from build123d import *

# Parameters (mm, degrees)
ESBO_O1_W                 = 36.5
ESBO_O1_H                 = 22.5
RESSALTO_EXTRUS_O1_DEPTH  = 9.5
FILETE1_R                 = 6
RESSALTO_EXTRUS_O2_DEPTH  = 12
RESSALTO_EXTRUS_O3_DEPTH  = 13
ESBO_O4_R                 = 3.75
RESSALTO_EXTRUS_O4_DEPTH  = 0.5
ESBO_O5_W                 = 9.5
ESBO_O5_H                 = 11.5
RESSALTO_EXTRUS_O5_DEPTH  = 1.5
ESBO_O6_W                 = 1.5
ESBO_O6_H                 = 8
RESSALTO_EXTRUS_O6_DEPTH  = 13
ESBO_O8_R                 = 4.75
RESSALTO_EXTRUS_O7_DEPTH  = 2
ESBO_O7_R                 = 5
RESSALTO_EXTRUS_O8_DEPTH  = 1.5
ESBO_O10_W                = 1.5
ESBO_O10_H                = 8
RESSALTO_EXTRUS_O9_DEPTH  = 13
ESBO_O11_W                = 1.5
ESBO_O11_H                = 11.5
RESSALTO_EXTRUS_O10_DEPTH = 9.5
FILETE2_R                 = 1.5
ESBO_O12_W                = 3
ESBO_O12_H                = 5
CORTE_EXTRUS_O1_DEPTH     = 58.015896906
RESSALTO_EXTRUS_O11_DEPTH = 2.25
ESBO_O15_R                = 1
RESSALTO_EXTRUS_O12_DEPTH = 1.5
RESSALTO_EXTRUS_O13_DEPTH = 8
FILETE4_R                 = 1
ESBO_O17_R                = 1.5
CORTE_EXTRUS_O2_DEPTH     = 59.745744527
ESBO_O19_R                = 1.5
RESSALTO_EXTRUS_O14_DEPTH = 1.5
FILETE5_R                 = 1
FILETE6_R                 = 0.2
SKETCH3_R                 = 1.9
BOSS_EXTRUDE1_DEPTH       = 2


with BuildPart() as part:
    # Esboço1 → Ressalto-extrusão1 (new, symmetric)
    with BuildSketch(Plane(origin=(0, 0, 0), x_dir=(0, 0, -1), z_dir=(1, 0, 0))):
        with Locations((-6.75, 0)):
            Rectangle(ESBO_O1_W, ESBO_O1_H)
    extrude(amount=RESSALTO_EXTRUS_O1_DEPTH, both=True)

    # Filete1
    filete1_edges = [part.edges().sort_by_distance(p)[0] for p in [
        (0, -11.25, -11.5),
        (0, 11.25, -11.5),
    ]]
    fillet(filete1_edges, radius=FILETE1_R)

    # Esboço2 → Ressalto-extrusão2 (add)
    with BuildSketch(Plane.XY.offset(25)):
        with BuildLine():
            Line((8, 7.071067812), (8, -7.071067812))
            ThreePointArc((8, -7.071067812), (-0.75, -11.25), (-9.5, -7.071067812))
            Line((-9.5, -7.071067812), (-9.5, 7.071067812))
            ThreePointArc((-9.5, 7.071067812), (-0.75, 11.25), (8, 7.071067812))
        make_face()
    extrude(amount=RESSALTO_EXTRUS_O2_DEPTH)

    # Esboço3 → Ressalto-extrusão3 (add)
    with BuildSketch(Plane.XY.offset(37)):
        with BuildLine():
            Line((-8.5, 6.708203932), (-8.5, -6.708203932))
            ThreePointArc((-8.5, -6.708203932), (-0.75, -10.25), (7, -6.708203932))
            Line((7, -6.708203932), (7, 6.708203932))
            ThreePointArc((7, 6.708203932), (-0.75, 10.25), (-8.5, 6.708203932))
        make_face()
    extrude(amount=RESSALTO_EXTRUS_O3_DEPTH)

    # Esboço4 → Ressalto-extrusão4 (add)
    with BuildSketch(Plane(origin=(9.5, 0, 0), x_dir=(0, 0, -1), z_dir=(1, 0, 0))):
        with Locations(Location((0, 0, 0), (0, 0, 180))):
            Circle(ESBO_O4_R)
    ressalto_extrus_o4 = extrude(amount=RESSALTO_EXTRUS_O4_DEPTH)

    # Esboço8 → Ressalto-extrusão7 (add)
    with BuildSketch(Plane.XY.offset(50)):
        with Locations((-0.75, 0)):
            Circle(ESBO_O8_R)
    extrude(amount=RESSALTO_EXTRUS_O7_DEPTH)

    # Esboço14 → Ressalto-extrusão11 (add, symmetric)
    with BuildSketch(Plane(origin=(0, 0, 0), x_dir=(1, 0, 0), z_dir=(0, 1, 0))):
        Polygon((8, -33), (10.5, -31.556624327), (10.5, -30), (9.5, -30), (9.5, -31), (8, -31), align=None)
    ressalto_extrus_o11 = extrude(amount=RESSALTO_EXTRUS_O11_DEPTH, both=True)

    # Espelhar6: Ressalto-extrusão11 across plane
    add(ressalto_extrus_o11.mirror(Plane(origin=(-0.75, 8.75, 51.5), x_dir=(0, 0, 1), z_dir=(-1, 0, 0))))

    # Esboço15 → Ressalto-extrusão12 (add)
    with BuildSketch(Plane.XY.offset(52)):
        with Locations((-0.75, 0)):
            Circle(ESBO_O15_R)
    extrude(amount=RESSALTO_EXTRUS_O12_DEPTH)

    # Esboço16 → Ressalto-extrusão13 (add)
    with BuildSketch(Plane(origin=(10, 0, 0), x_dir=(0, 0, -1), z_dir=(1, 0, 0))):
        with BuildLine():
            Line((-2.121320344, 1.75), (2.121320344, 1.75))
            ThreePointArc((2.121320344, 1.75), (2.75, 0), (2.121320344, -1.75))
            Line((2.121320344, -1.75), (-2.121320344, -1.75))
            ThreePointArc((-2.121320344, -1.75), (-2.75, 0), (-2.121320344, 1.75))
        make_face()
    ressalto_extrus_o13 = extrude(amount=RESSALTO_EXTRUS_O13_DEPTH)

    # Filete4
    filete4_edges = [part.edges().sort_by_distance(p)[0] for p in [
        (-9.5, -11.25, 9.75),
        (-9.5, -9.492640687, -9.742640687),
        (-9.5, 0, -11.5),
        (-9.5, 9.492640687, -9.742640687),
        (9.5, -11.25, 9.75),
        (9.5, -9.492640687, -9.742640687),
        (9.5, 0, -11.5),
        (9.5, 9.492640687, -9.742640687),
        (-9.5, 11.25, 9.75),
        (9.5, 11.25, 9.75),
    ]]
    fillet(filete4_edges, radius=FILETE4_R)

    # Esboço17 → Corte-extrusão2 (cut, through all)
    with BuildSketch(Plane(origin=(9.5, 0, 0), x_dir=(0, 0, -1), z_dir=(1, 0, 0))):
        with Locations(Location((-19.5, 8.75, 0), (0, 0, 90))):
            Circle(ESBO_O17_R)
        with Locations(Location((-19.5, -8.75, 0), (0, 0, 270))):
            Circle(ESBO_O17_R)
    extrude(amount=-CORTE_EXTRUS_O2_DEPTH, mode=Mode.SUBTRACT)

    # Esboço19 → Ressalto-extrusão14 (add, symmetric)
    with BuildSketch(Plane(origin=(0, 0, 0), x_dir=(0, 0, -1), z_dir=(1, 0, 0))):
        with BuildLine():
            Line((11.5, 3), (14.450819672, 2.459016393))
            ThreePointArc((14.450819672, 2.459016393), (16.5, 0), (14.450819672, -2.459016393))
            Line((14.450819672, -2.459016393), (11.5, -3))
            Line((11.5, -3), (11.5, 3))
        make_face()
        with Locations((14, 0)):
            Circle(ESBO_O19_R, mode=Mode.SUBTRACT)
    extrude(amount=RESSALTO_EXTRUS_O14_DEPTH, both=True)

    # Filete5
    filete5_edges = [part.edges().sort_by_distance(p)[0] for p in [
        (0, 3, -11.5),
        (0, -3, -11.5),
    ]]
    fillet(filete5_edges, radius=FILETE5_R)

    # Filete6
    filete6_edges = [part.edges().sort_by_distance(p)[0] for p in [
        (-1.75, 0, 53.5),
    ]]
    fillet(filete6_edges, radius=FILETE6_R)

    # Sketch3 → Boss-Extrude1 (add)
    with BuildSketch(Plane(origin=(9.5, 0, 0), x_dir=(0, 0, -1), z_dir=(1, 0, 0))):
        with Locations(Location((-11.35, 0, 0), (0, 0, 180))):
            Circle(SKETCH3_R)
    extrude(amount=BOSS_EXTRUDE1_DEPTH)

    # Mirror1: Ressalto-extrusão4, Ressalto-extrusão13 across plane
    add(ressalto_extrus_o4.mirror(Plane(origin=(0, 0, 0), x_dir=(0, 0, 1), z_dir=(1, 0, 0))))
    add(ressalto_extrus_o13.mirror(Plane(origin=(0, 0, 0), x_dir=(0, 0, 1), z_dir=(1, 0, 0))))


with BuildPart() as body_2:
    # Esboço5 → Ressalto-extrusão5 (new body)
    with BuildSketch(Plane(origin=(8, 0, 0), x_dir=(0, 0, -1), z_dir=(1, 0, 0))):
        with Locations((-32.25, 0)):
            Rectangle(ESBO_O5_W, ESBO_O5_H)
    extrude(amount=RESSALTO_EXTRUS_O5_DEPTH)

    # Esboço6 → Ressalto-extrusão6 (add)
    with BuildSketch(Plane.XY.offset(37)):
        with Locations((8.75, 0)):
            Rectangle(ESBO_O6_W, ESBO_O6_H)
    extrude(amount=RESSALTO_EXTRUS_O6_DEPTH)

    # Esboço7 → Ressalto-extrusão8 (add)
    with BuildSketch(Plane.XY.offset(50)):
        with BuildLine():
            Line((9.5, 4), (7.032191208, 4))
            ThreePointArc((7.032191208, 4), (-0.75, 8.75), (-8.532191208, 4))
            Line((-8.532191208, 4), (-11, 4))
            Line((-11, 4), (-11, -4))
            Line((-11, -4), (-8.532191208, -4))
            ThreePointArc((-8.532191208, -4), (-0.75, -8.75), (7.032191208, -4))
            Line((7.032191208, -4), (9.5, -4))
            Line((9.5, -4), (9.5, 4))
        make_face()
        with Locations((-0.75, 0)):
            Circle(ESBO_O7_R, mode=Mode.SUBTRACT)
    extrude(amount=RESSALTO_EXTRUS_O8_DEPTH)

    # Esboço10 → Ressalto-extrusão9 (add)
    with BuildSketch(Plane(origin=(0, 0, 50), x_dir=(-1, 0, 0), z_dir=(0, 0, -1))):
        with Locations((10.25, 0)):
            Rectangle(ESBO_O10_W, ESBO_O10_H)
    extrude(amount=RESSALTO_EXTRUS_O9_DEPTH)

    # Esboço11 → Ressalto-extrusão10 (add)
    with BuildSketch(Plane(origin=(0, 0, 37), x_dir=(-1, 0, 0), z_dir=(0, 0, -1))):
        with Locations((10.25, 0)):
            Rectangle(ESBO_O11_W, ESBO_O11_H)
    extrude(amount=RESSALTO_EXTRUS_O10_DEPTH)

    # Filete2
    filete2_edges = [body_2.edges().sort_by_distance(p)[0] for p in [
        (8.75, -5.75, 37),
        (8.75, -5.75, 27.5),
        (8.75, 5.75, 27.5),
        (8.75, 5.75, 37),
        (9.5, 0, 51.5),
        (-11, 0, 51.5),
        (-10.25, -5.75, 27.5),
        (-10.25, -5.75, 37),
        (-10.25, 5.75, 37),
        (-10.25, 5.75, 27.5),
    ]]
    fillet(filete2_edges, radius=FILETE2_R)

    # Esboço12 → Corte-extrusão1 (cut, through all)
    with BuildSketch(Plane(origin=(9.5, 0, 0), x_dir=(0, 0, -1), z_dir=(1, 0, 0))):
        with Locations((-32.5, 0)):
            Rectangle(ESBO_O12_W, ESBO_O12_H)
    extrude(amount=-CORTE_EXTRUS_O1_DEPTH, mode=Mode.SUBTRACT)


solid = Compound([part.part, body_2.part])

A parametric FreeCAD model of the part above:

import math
import FreeCAD as App
import Part
import Sketcher
Q = App.Units.Quantity


def edges_at(feature, points):
    """Names of the edges that pass closest to the given points."""
    edges = feature.Shape.Edges
    near = lambda p: min(range(len(edges)), key=lambda i: edges[i].distToShape(Part.Vertex(*p))[0])
    return sorted({f"Edge{near(p) + 1}" for p in points})


def add_polygon(sketch, points):
    """Adds a closed chain of lines whose ends are joined by coincident constraints."""
    first, n = sketch.GeometryCount, len(points)
    for a, b in zip(points, points[1:] + points[:1]):
        sketch.addGeometry(Part.LineSegment(App.Vector(*a, 0), App.Vector(*b, 0)), False)
    for i in range(n):
        sketch.addConstraint(Sketcher.Constraint("Coincident", first + i, 2, first + (i + 1) % n, 1))

doc = App.newDocument("Part")
body = doc.addObject("PartDesign::Body", "Body")

sketch1 = doc.addObject("Sketcher::SketchObject", "Sketch")
body.addObject(sketch1)
sketch1.AttachmentSupport = (doc.YZ_Plane, [""])
sketch1.MapMode = "FlatFace"
add_polygon(sketch1, [(11, 25), (-11, 25), (-11, -12), (11, -12)])
sketch1.addConstraint([
    Sketcher.Constraint("Horizontal", 0),
    Sketcher.Constraint("Vertical", 1),
    Sketcher.Constraint("Horizontal", 2),
    Sketcher.Constraint("Vertical", 3),
    Sketcher.Constraint("DistanceX", 0, 2, 0, 1, Q("22.5 mm")),
    Sketcher.Constraint("DistanceY", 1, 2, 1, 1, Q("36.5 mm")),
    Sketcher.Constraint("DistanceY", -1, 1, 0, 2, Q("25 mm")),
    Sketcher.Constraint("DistanceX", 0, 2, -1, 1, Q("11.25 mm")),
])
pad1 = doc.addObject("PartDesign::Pad", "Pad")
body.addObject(pad1)
pad1.Profile = sketch1
pad1.Length = 19
pad1.Midplane = True
doc.recompute()

fillet = doc.addObject("PartDesign::Fillet", "Fillet")
body.addObject(fillet)
fillet.Base = (pad1, edges_at(pad1, [(0, -11.25, -11.5), (0, 11.25, -11.5)]))
fillet.Radius = 6

sketch2 = doc.addObject("Sketcher::SketchObject", "Sketch001")
body.addObject(sketch2)
sketch2.AttachmentSupport = (doc.XY_Plane, [""])
sketch2.MapMode = "FlatFace"
sketch2.AttachmentOffset = App.Placement(App.Vector(0, 0, 25), App.Rotation())
sketch2.addGeometry([
    Part.LineSegment(App.Vector(8, -7, 0), App.Vector(8, 7, 0)),
    Part.ArcOfCircle(Part.Circle(App.Vector(-1, 0, 0), App.Vector(0, 0, 1), 11), math.radians(39), math.radians(141)),
    Part.LineSegment(App.Vector(-10, 7, 0), App.Vector(-10, -7, 0)),
    Part.ArcOfCircle(Part.Circle(App.Vector(-1, 0, 0), App.Vector(0, 0, 1), 11), math.radians(-141), math.radians(-39)),
], False)
sketch2.addConstraint([
    Sketcher.Constraint("Coincident", 0, 2, 1, 1),
    Sketcher.Constraint("Coincident", 1, 2, 2, 1),
    Sketcher.Constraint("Coincident", 2, 2, 3, 1),
    Sketcher.Constraint("Coincident", 3, 2, 0, 1),
    Sketcher.Constraint("Vertical", 0),
    Sketcher.Constraint("Vertical", 2),
    Sketcher.Constraint("Coincident", 3, 3, 1, 3),
    Sketcher.Constraint("Equal", 1, 3),
    Sketcher.Constraint("PointOnObject", 1, 3, -1),
    Sketcher.Constraint("Horizontal", 0, 2, 1, 2),
    Sketcher.Constraint("Radius", 1, Q("11.25 mm")),
    Sketcher.Constraint("DistanceX", -1, 1, 0, 2, Q("8 mm")),
    Sketcher.Constraint("DistanceX", 1, 2, -1, 1, Q("9.5 mm")),
])
pad2 = doc.addObject("PartDesign::Pad", "Pad001")
body.addObject(pad2)
pad2.Profile = sketch2
pad2.Length = 12

sketch3 = doc.addObject("Sketcher::SketchObject", "Sketch002")
body.addObject(sketch3)
sketch3.AttachmentSupport = (doc.XY_Plane, [""])
sketch3.MapMode = "FlatFace"
sketch3.AttachmentOffset = App.Placement(App.Vector(0, 0, 37), App.Rotation())
sketch3.addGeometry([
    Part.LineSegment(App.Vector(-8, 7, 0), App.Vector(-8, -7, 0)),
    Part.ArcOfCircle(Part.Circle(App.Vector(-1, 0, 0), App.Vector(0, 0, 1), 10), math.radians(-139), math.radians(-41)),
    Part.LineSegment(App.Vector(7, -7, 0), App.Vector(7, 7, 0)),
    Part.ArcOfCircle(Part.Circle(App.Vector(-1, 0, 0), App.Vector(0, 0, 1), 10), math.radians(41), math.radians(139)),
], False)
sketch3.addConstraint([
    Sketcher.Constraint("Coincident", 0, 2, 1, 1),
    Sketcher.Constraint("Coincident", 1, 2, 2, 1),
    Sketcher.Constraint("Coincident", 2, 2, 3, 1),
    Sketcher.Constraint("Coincident", 3, 2, 0, 1),
    Sketcher.Constraint("Vertical", 0),
    Sketcher.Constraint("Vertical", 2),
    Sketcher.Constraint("Coincident", 3, 3, 1, 3),
    Sketcher.Constraint("Equal", 1, 3),
    Sketcher.Constraint("PointOnObject", 1, 3, -1),
    Sketcher.Constraint("Horizontal", 0, 2, 1, 2),
    Sketcher.Constraint("Radius", 1, Q("10.25 mm")),
    Sketcher.Constraint("DistanceX", -1, 1, 1, 2, Q("7 mm")),
    Sketcher.Constraint("DistanceX", 0, 2, -1, 1, Q("8.5 mm")),
])
pad3 = doc.addObject("PartDesign::Pad", "Pad002")
body.addObject(pad3)
pad3.Profile = sketch3
pad3.Length = 13

sketch4 = doc.addObject("Sketcher::SketchObject", "Sketch003")
body.addObject(sketch4)
sketch4.AttachmentSupport = (doc.YZ_Plane, [""])
sketch4.MapMode = "FlatFace"
sketch4.AttachmentOffset = App.Placement(App.Vector(0, 0, 9.5), App.Rotation())
sketch4.addGeometry(Part.Circle(App.Vector(0, 0, 0), App.Vector(0, 0, 1), 3.8), False)
sketch4.addConstraint([
    Sketcher.Constraint("Coincident", 0, 3, -1, 1),
    Sketcher.Constraint("Diameter", 0, Q("7.5 mm")),
])
pad4 = doc.addObject("PartDesign::Pad", "Pad003")
body.addObject(pad4)
pad4.Profile = sketch4
pad4.Length = 0.5

sketch5 = doc.addObject("Sketcher::SketchObject", "Sketch004")
body.addObject(sketch5)
sketch5.AttachmentSupport = (doc.XY_Plane, [""])
sketch5.MapMode = "FlatFace"
sketch5.AttachmentOffset = App.Placement(App.Vector(0, 0, 50), App.Rotation())
sketch5.addGeometry(Part.Circle(App.Vector(-0.8, 0, 0), App.Vector(0, 0, 1), 4.8), False)
sketch5.addConstraint([
    Sketcher.Constraint("PointOnObject", 0, 3, -1),
    Sketcher.Constraint("Diameter", 0, Q("9.5 mm")),
    Sketcher.Constraint("DistanceX", 0, 3, -1, 1, Q("0.75 mm")),
])
pad5 = doc.addObject("PartDesign::Pad", "Pad004")
body.addObject(pad5)
pad5.Profile = sketch5
pad5.Length = 2

sketch6 = doc.addObject("Sketcher::SketchObject", "Sketch005")
body.addObject(sketch6)
sketch6.AttachmentSupport = (doc.XZ_Plane, [""])
sketch6.MapMode = "FlatFace"
add_polygon(sketch6, [(8, 33), (10.5, 31.6), (10.5, 30), (9.5, 30), (9.5, 31), (8, 31)])
sketch6.addConstraint([
    Sketcher.Constraint("Vertical", 1),
    Sketcher.Constraint("Horizontal", 2),
    Sketcher.Constraint("Vertical", 3),
    Sketcher.Constraint("Horizontal", 4),
    Sketcher.Constraint("Vertical", 5),
    Sketcher.Constraint("Equal", 2, 3),
    Sketcher.Constraint("DistanceX", 2, 2, 2, 1, Q("1 mm")),
    Sketcher.Constraint("DistanceY", 5, 1, 5, 2, Q("2 mm")),
    Sketcher.Constraint("Angle", 0, Q("-30 deg")),
    Sketcher.Constraint("DistanceX", 4, 2, 4, 1, Q("1.5 mm")),
    Sketcher.Constraint("DistanceY", -1, 1, 1, 2, Q("30 mm")),
    Sketcher.Constraint("DistanceX", -1, 1, 4, 2, Q("8 mm")),
])
pad6 = doc.addObject("PartDesign::Pad", "Pad005")
body.addObject(pad6)
pad6.Profile = sketch6
pad6.Length = 4.5
pad6.Midplane = True
doc.recompute()

datumplane = doc.addObject("PartDesign::Plane", "DatumPlane")
body.addObject(datumplane)
datumplane.AttachmentSupport = (doc.YZ_Plane, [""])
datumplane.MapMode = "FlatFace"
datumplane.AttachmentOffset = App.Placement(App.Vector(0, 0, -0.75), App.Rotation())
mirrored = doc.addObject("PartDesign::Mirrored", "Mirrored")
body.addObject(mirrored)
mirrored.Originals = [pad6]
mirrored.MirrorPlane = (datumplane, [""])
body.Tip = mirrored

sketch7 = doc.addObject("Sketcher::SketchObject", "Sketch006")
body.addObject(sketch7)
sketch7.AttachmentSupport = (doc.XY_Plane, [""])
sketch7.MapMode = "FlatFace"
sketch7.AttachmentOffset = App.Placement(App.Vector(0, 0, 52), App.Rotation())
sketch7.addGeometry(Part.Circle(App.Vector(-0.8, 0, 0), App.Vector(0, 0, 1), 1), False)
sketch7.addConstraint([
    Sketcher.Constraint("PointOnObject", 0, 3, -1),
    Sketcher.Constraint("Diameter", 0, Q("2 mm")),
    Sketcher.Constraint("DistanceX", 0, 3, -1, 1, Q("0.75 mm")),
])
pad7 = doc.addObject("PartDesign::Pad", "Pad006")
body.addObject(pad7)
pad7.Profile = sketch7
pad7.Length = 1.5

sketch8 = doc.addObject("Sketcher::SketchObject", "Sketch007")
body.addObject(sketch8)
sketch8.AttachmentSupport = (doc.YZ_Plane, [""])
sketch8.MapMode = "FlatFace"
sketch8.AttachmentOffset = App.Placement(App.Vector(0, 0, 10), App.Rotation())
sketch8.addGeometry([
    Part.LineSegment(App.Vector(1.8, -2.1, 0), App.Vector(1.8, 2.1, 0)),
    Part.ArcOfCircle(Part.Circle(App.Vector(0, 0, 0), App.Vector(0, 0, 1), 2.8), math.radians(50), math.radians(130)),
    Part.LineSegment(App.Vector(-1.8, 2.1, 0), App.Vector(-1.8, -2.1, 0)),
    Part.ArcOfCircle(Part.Circle(App.Vector(0, 0, 0), App.Vector(0, 0, 1), 2.8), math.radians(-130), math.radians(-50)),
], False)
sketch8.addConstraint([
    Sketcher.Constraint("Coincident", 0, 2, 1, 1),
    Sketcher.Constraint("Coincident", 1, 2, 2, 1),
    Sketcher.Constraint("Coincident", 2, 2, 3, 1),
    Sketcher.Constraint("Coincident", 3, 2, 0, 1),
    Sketcher.Constraint("Vertical", 0),
    Sketcher.Constraint("Vertical", 2),
    Sketcher.Constraint("Coincident", 1, 3, -1, 1),
    Sketcher.Constraint("Coincident", 3, 3, -1, 1),
    Sketcher.Constraint("Equal", 1, 3),
    Sketcher.Constraint("Horizontal", 0, 2, 1, 2),
    Sketcher.Constraint("Radius", 1, Q("2.75 mm")),
    Sketcher.Constraint("DistanceX", 1, 2, 0, 2, Q("3.5 mm")),
])
pad8 = doc.addObject("PartDesign::Pad", "Pad007")
body.addObject(pad8)
pad8.Profile = sketch8
pad8.Length = 8
doc.recompute()

fillet2 = doc.addObject("PartDesign::Fillet", "Fillet001")
body.addObject(fillet2)
fillet2.Base = (pad8, edges_at(pad8, [
    (-9.5, -11.25, 9.75),
    (-9.5, -9.493, -9.743),
    (-9.5, 0, -11.5),
    (-9.5, 9.493, -9.743),
    (9.5, -11.25, 9.75),
    (9.5, -9.493, -9.743),
    (9.5, 0, -11.5),
    (9.5, 9.493, -9.743),
    (-9.5, 11.25, 9.75),
    (9.5, 11.25, 9.75),
]))
fillet2.Radius = 1

sketch9 = doc.addObject("Sketcher::SketchObject", "Sketch008")
body.addObject(sketch9)
sketch9.AttachmentSupport = (doc.YZ_Plane, [""])
sketch9.MapMode = "FlatFace"
sketch9.AttachmentOffset = App.Placement(App.Vector(0, 0, 9.5), App.Rotation())
sketch9.addGeometry([
    Part.Circle(App.Vector(8.8, 19.5, 0), App.Vector(0, 0, 1), 1.5),
    Part.Circle(App.Vector(-8.8, 19.5, 0), App.Vector(0, 0, 1), 1.5),
], False)
sketch9.addConstraint([
    Sketcher.Constraint("Equal", 0, 1),
    Sketcher.Constraint("Symmetric", 0, 3, 1, 3, -2),
    Sketcher.Constraint("Diameter", 0, Q("3 mm")),
    Sketcher.Constraint("DistanceY", -1, 1, 0, 3, Q("19.5 mm")),
    Sketcher.Constraint("DistanceX", 1, 3, 0, 3, Q("17.5 mm")),
])
pocket1 = doc.addObject("PartDesign::Pocket", "Pocket")
body.addObject(pocket1)
pocket1.Profile = sketch9
pocket1.Type = "ThroughAll"

sketch10 = doc.addObject("Sketcher::SketchObject", "Sketch009")
body.addObject(sketch10)
sketch10.AttachmentSupport = (doc.YZ_Plane, [""])
sketch10.MapMode = "FlatFace"
sketch10.addGeometry([
    Part.LineSegment(App.Vector(2.5, -14.5, 0), App.Vector(3, -11.5, 0)),
    Part.LineSegment(App.Vector(3, -11.5, 0), App.Vector(-3, -11.5, 0)),
    Part.LineSegment(App.Vector(-3, -11.5, 0), App.Vector(-2.5, -14.5, 0)),
    Part.ArcOfCircle(Part.Circle(App.Vector(0, -14, 0), App.Vector(0, 0, 1), 2.5), math.radians(-170), math.radians(-10)),
    Part.Circle(App.Vector(0, -14, 0), App.Vector(0, 0, 1), 1.5),
], False)
sketch10.addConstraint([
    Sketcher.Constraint("Coincident", 0, 2, 1, 1),
    Sketcher.Constraint("Coincident", 1, 2, 2, 1),
    Sketcher.Constraint("Tangent", 2, 2, 3, 1),
    Sketcher.Constraint("Tangent", 3, 2, 0, 1),
    Sketcher.Constraint("Horizontal", 1),
    Sketcher.Constraint("Coincident", 4, 3, 3, 3),
    Sketcher.Constraint("Symmetric", 2, 2, 3, 2, -2),
    Sketcher.Constraint("Diameter", 4, Q("3 mm")),
    Sketcher.Constraint("Radius", 3, Q("2.5 mm")),
    Sketcher.Constraint("DistanceX", 1, 2, 1, 1, Q("6 mm")),
    Sketcher.Constraint("Distance", 0, Q("3 mm")),
    Sketcher.Constraint("DistanceY", 3, 3, -1, 1, Q("14 mm")),
])
pad9 = doc.addObject("PartDesign::Pad", "Pad008")
body.addObject(pad9)
pad9.Profile = sketch10
pad9.Length = 3
pad9.Midplane = True
doc.recompute()

fillet3 = doc.addObject("PartDesign::Fillet", "Fillet002")
body.addObject(fillet3)
fillet3.Base = (pad9, edges_at(pad9, [(0, 3, -11.5), (0, -3, -11.5)]))
fillet3.Radius = 1
doc.recompute()

fillet4 = doc.addObject("PartDesign::Fillet", "Fillet003")
body.addObject(fillet4)
fillet4.Base = (fillet3, edges_at(fillet3, [(-1.75, 0, 53.5)]))
fillet4.Radius = 0.2

sketch11 = doc.addObject("Sketcher::SketchObject", "Sketch010")
body.addObject(sketch11)
sketch11.AttachmentSupport = (doc.YZ_Plane, [""])
sketch11.MapMode = "FlatFace"
sketch11.AttachmentOffset = App.Placement(App.Vector(0, 0, 9.5), App.Rotation())
sketch11.addGeometry(Part.Circle(App.Vector(0, 11.3, 0), App.Vector(0, 0, 1), 1.9), False)
sketch11.addConstraint([
    Sketcher.Constraint("PointOnObject", 0, 3, -2),
    Sketcher.Constraint("Diameter", 0, Q("3.8 mm")),
    Sketcher.Constraint("DistanceY", -1, 1, 0, 3, Q("11.35 mm")),
])
pad10 = doc.addObject("PartDesign::Pad", "Pad009")
body.addObject(pad10)
pad10.Profile = sketch11
pad10.Length = 2
doc.recompute()

mirrored2 = doc.addObject("PartDesign::Mirrored", "Mirrored001")
body.addObject(mirrored2)
mirrored2.Originals = [pad4, pad8]
mirrored2.MirrorPlane = (doc.YZ_Plane, [""])
body.Tip = mirrored2
body2 = doc.addObject("PartDesign::Body", "Body001")

sketch12 = doc.addObject("Sketcher::SketchObject", "Sketch011")
body2.addObject(sketch12)
sketch12.AttachmentSupport = (doc.getObject("YZ_Plane001"), [""])
sketch12.MapMode = "FlatFace"
sketch12.AttachmentOffset = App.Placement(App.Vector(0, 0, 8), App.Rotation())
add_polygon(sketch12, [(6, 37), (-6, 37), (-6, 28), (6, 28)])
sketch12.addConstraint([
    Sketcher.Constraint("Horizontal", 0),
    Sketcher.Constraint("Vertical", 1),
    Sketcher.Constraint("Horizontal", 2),
    Sketcher.Constraint("Vertical", 3),
    Sketcher.Constraint("DistanceX", 0, 2, 0, 1, Q("11.5 mm")),
    Sketcher.Constraint("DistanceY", 1, 2, 1, 1, Q("9.5 mm")),
    Sketcher.Constraint("DistanceY", -1, 1, 0, 2, Q("37 mm")),
    Sketcher.Constraint("DistanceX", 0, 2, -1, 1, Q("5.75 mm")),
])
pad11 = doc.addObject("PartDesign::Pad", "Pad010")
body2.addObject(pad11)
pad11.Profile = sketch12
pad11.Length = 1.5

sketch13 = doc.addObject("Sketcher::SketchObject", "Sketch012")
body2.addObject(sketch13)
sketch13.AttachmentSupport = (doc.getObject("XY_Plane001"), [""])
sketch13.MapMode = "FlatFace"
sketch13.AttachmentOffset = App.Placement(App.Vector(0, 0, 37), App.Rotation())
add_polygon(sketch13, [(8, 4), (8, -4), (9.5, -4), (9.5, 4)])
sketch13.addConstraint([
    Sketcher.Constraint("Vertical", 0),
    Sketcher.Constraint("Horizontal", 1),
    Sketcher.Constraint("Vertical", 2),
    Sketcher.Constraint("Horizontal", 3),
    Sketcher.Constraint("DistanceY", 0, 2, 0, 1, Q("8 mm")),
    Sketcher.Constraint("DistanceX", 1, 1, 1, 2, Q("1.5 mm")),
    Sketcher.Constraint("DistanceX", -1, 1, 0, 2, Q("8 mm")),
    Sketcher.Constraint("DistanceY", 0, 2, -1, 1, Q("4 mm")),
])
pad12 = doc.addObject("PartDesign::Pad", "Pad011")
body2.addObject(pad12)
pad12.Profile = sketch13
pad12.Length = 13

sketch14 = doc.addObject("Sketcher::SketchObject", "Sketch013")
body2.addObject(sketch14)
sketch14.AttachmentSupport = (doc.getObject("XY_Plane001"), [""])
sketch14.MapMode = "FlatFace"
sketch14.AttachmentOffset = App.Placement(App.Vector(0, 0, 50), App.Rotation())
sketch14.addGeometry([
    Part.LineSegment(App.Vector(9.5, 4, 0), App.Vector(7, 4, 0)),
    Part.ArcOfCircle(Part.Circle(App.Vector(-0.8, 0, 0), App.Vector(0, 0, 1), 8.8), math.radians(27), math.radians(153)),
    Part.LineSegment(App.Vector(-8.5, 4, 0), App.Vector(-11, 4, 0)),
    Part.LineSegment(App.Vector(-11, 4, 0), App.Vector(-11, -4, 0)),
    Part.LineSegment(App.Vector(-11, -4, 0), App.Vector(-8.5, -4, 0)),
    Part.ArcOfCircle(Part.Circle(App.Vector(-0.8, 0, 0), App.Vector(0, 0, 1), 8.8), math.radians(-153), math.radians(-27)),
    Part.LineSegment(App.Vector(7, -4, 0), App.Vector(9.5, -4, 0)),
    Part.LineSegment(App.Vector(9.5, -4, 0), App.Vector(9.5, 4, 0)),
    Part.Circle(App.Vector(-0.8, 0, 0), App.Vector(0, 0, 1), 5),
], False)
sketch14.addConstraint([
    Sketcher.Constraint("Coincident", 0, 2, 1, 1),
    Sketcher.Constraint("Coincident", 1, 2, 2, 1),
    Sketcher.Constraint("Coincident", 2, 2, 3, 1),
    Sketcher.Constraint("Coincident", 3, 2, 4, 1),
    Sketcher.Constraint("Coincident", 4, 2, 5, 1),
    Sketcher.Constraint("Coincident", 5, 2, 6, 1),
    Sketcher.Constraint("Coincident", 6, 2, 7, 1),
    Sketcher.Constraint("Coincident", 7, 2, 0, 1),
    Sketcher.Constraint("Horizontal", 0),
    Sketcher.Constraint("Horizontal", 2),
    Sketcher.Constraint("Vertical", 3),
    Sketcher.Constraint("Horizontal", 4),
    Sketcher.Constraint("Horizontal", 6),
    Sketcher.Constraint("Vertical", 7),
    Sketcher.Constraint("Coincident", 5, 3, 1, 3),
    Sketcher.Constraint("Coincident", 8, 3, 1, 3),
    Sketcher.Constraint("Equal", 1, 5),
    Sketcher.Constraint("Symmetric", 1, 2, 4, 2, -1),
    Sketcher.Constraint("Horizontal", 0, 2, 1, 2),
    Sketcher.Constraint("Horizontal", 4, 2, 5, 2),
    Sketcher.Constraint("Equal", 0, 2),
    Sketcher.Constraint("Diameter", 8, Q("10 mm")),
    Sketcher.Constraint("DistanceY", 3, 2, 3, 1, Q("8 mm")),
    Sketcher.Constraint("Radius", 1, Q("8.75 mm")),
    Sketcher.Constraint("DistanceX", 2, 2, -1, 1, Q("11 mm")),
    Sketcher.Constraint("DistanceX", -1, 1, 6, 2, Q("9.5 mm")),
])
pad13 = doc.addObject("PartDesign::Pad", "Pad012")
body2.addObject(pad13)
pad13.Profile = sketch14
pad13.Length = 1.5

sketch15 = doc.addObject("Sketcher::SketchObject", "Sketch014")
body2.addObject(sketch15)
sketch15.AttachmentSupport = (doc.getObject("XY_Plane001"), [""])
sketch15.MapMode = "FlatFace"
sketch15.AttachmentOffset = App.Placement(App.Vector(0, 0, 50), App.Rotation())
add_polygon(sketch15, [(-9.5, 4), (-9.5, -4), (-11, -4), (-11, 4)])
sketch15.addConstraint([
    Sketcher.Constraint("Vertical", 0),
    Sketcher.Constraint("Horizontal", 1),
    Sketcher.Constraint("Vertical", 2),
    Sketcher.Constraint("Horizontal", 3),
    Sketcher.Constraint("DistanceY", 0, 2, 0, 1, Q("8 mm")),
    Sketcher.Constraint("DistanceX", 1, 2, 1, 1, Q("1.5 mm")),
    Sketcher.Constraint("DistanceY", 0, 2, -1, 1, Q("4 mm")),
    Sketcher.Constraint("DistanceX", 1, 2, -1, 1, Q("11 mm")),
])
pad14 = doc.addObject("PartDesign::Pad", "Pad013")
body2.addObject(pad14)
pad14.Profile = sketch15
pad14.Length = 13
pad14.Reversed = True

sketch16 = doc.addObject("Sketcher::SketchObject", "Sketch015")
body2.addObject(sketch16)
sketch16.AttachmentSupport = (doc.getObject("XY_Plane001"), [""])
sketch16.MapMode = "FlatFace"
sketch16.AttachmentOffset = App.Placement(App.Vector(0, 0, 37), App.Rotation())
add_polygon(sketch16, [(-9.5, 5.8), (-9.5, -5.8), (-11, -5.8), (-11, 5.8)])
sketch16.addConstraint([
    Sketcher.Constraint("Vertical", 0),
    Sketcher.Constraint("Horizontal", 1),
    Sketcher.Constraint("Vertical", 2),
    Sketcher.Constraint("Horizontal", 3),
    Sketcher.Constraint("DistanceX", 1, 2, 1, 1, Q("1.5 mm")),
    Sketcher.Constraint("DistanceY", 0, 2, 0, 1, Q("11.5 mm")),
    Sketcher.Constraint("DistanceX", 1, 2, -1, 1, Q("11 mm")),
    Sketcher.Constraint("DistanceY", 0, 2, -1, 1, Q("5.75 mm")),
])
pad15 = doc.addObject("PartDesign::Pad", "Pad014")
body2.addObject(pad15)
pad15.Profile = sketch16
pad15.Length = 9.5
pad15.Reversed = True
doc.recompute()

fillet5 = doc.addObject("PartDesign::Fillet", "Fillet004")
body2.addObject(fillet5)
fillet5.Base = (pad15, edges_at(pad15, [
    (8.75, -5.75, 37),
    (8.75, -5.75, 27.5),
    (8.75, 5.75, 27.5),
    (8.75, 5.75, 37),
    (9.5, 0, 51.5),
    (-11, 0, 51.5),
    (-10.25, -5.75, 27.5),
    (-10.25, -5.75, 37),
    (-10.25, 5.75, 37),
    (-10.25, 5.75, 27.5),
]))
fillet5.Radius = 1.5

sketch17 = doc.addObject("Sketcher::SketchObject", "Sketch016")
body2.addObject(sketch17)
sketch17.AttachmentSupport = (doc.getObject("YZ_Plane001"), [""])
sketch17.MapMode = "FlatFace"
sketch17.AttachmentOffset = App.Placement(App.Vector(0, 0, 9.5), App.Rotation())
add_polygon(sketch17, [(2.5, 34), (-2.5, 34), (-2.5, 31), (2.5, 31)])
sketch17.addConstraint([
    Sketcher.Constraint("Horizontal", 0),
    Sketcher.Constraint("Vertical", 1),
    Sketcher.Constraint("Horizontal", 2),
    Sketcher.Constraint("Vertical", 3),
    Sketcher.Constraint("DistanceX", 0, 2, 0, 1, Q("5 mm")),
    Sketcher.Constraint("DistanceY", 1, 2, 1, 1, Q("3 mm")),
    Sketcher.Constraint("DistanceY", -1, 1, 0, 2, Q("34 mm")),
    Sketcher.Constraint("DistanceX", 0, 2, -1, 1, Q("2.5 mm")),
])
pocket2 = doc.addObject("PartDesign::Pocket", "Pocket001")
body2.addObject(pocket2)
pocket2.Profile = sketch17
pocket2.Type = "ThroughAll"

doc.recompute()
